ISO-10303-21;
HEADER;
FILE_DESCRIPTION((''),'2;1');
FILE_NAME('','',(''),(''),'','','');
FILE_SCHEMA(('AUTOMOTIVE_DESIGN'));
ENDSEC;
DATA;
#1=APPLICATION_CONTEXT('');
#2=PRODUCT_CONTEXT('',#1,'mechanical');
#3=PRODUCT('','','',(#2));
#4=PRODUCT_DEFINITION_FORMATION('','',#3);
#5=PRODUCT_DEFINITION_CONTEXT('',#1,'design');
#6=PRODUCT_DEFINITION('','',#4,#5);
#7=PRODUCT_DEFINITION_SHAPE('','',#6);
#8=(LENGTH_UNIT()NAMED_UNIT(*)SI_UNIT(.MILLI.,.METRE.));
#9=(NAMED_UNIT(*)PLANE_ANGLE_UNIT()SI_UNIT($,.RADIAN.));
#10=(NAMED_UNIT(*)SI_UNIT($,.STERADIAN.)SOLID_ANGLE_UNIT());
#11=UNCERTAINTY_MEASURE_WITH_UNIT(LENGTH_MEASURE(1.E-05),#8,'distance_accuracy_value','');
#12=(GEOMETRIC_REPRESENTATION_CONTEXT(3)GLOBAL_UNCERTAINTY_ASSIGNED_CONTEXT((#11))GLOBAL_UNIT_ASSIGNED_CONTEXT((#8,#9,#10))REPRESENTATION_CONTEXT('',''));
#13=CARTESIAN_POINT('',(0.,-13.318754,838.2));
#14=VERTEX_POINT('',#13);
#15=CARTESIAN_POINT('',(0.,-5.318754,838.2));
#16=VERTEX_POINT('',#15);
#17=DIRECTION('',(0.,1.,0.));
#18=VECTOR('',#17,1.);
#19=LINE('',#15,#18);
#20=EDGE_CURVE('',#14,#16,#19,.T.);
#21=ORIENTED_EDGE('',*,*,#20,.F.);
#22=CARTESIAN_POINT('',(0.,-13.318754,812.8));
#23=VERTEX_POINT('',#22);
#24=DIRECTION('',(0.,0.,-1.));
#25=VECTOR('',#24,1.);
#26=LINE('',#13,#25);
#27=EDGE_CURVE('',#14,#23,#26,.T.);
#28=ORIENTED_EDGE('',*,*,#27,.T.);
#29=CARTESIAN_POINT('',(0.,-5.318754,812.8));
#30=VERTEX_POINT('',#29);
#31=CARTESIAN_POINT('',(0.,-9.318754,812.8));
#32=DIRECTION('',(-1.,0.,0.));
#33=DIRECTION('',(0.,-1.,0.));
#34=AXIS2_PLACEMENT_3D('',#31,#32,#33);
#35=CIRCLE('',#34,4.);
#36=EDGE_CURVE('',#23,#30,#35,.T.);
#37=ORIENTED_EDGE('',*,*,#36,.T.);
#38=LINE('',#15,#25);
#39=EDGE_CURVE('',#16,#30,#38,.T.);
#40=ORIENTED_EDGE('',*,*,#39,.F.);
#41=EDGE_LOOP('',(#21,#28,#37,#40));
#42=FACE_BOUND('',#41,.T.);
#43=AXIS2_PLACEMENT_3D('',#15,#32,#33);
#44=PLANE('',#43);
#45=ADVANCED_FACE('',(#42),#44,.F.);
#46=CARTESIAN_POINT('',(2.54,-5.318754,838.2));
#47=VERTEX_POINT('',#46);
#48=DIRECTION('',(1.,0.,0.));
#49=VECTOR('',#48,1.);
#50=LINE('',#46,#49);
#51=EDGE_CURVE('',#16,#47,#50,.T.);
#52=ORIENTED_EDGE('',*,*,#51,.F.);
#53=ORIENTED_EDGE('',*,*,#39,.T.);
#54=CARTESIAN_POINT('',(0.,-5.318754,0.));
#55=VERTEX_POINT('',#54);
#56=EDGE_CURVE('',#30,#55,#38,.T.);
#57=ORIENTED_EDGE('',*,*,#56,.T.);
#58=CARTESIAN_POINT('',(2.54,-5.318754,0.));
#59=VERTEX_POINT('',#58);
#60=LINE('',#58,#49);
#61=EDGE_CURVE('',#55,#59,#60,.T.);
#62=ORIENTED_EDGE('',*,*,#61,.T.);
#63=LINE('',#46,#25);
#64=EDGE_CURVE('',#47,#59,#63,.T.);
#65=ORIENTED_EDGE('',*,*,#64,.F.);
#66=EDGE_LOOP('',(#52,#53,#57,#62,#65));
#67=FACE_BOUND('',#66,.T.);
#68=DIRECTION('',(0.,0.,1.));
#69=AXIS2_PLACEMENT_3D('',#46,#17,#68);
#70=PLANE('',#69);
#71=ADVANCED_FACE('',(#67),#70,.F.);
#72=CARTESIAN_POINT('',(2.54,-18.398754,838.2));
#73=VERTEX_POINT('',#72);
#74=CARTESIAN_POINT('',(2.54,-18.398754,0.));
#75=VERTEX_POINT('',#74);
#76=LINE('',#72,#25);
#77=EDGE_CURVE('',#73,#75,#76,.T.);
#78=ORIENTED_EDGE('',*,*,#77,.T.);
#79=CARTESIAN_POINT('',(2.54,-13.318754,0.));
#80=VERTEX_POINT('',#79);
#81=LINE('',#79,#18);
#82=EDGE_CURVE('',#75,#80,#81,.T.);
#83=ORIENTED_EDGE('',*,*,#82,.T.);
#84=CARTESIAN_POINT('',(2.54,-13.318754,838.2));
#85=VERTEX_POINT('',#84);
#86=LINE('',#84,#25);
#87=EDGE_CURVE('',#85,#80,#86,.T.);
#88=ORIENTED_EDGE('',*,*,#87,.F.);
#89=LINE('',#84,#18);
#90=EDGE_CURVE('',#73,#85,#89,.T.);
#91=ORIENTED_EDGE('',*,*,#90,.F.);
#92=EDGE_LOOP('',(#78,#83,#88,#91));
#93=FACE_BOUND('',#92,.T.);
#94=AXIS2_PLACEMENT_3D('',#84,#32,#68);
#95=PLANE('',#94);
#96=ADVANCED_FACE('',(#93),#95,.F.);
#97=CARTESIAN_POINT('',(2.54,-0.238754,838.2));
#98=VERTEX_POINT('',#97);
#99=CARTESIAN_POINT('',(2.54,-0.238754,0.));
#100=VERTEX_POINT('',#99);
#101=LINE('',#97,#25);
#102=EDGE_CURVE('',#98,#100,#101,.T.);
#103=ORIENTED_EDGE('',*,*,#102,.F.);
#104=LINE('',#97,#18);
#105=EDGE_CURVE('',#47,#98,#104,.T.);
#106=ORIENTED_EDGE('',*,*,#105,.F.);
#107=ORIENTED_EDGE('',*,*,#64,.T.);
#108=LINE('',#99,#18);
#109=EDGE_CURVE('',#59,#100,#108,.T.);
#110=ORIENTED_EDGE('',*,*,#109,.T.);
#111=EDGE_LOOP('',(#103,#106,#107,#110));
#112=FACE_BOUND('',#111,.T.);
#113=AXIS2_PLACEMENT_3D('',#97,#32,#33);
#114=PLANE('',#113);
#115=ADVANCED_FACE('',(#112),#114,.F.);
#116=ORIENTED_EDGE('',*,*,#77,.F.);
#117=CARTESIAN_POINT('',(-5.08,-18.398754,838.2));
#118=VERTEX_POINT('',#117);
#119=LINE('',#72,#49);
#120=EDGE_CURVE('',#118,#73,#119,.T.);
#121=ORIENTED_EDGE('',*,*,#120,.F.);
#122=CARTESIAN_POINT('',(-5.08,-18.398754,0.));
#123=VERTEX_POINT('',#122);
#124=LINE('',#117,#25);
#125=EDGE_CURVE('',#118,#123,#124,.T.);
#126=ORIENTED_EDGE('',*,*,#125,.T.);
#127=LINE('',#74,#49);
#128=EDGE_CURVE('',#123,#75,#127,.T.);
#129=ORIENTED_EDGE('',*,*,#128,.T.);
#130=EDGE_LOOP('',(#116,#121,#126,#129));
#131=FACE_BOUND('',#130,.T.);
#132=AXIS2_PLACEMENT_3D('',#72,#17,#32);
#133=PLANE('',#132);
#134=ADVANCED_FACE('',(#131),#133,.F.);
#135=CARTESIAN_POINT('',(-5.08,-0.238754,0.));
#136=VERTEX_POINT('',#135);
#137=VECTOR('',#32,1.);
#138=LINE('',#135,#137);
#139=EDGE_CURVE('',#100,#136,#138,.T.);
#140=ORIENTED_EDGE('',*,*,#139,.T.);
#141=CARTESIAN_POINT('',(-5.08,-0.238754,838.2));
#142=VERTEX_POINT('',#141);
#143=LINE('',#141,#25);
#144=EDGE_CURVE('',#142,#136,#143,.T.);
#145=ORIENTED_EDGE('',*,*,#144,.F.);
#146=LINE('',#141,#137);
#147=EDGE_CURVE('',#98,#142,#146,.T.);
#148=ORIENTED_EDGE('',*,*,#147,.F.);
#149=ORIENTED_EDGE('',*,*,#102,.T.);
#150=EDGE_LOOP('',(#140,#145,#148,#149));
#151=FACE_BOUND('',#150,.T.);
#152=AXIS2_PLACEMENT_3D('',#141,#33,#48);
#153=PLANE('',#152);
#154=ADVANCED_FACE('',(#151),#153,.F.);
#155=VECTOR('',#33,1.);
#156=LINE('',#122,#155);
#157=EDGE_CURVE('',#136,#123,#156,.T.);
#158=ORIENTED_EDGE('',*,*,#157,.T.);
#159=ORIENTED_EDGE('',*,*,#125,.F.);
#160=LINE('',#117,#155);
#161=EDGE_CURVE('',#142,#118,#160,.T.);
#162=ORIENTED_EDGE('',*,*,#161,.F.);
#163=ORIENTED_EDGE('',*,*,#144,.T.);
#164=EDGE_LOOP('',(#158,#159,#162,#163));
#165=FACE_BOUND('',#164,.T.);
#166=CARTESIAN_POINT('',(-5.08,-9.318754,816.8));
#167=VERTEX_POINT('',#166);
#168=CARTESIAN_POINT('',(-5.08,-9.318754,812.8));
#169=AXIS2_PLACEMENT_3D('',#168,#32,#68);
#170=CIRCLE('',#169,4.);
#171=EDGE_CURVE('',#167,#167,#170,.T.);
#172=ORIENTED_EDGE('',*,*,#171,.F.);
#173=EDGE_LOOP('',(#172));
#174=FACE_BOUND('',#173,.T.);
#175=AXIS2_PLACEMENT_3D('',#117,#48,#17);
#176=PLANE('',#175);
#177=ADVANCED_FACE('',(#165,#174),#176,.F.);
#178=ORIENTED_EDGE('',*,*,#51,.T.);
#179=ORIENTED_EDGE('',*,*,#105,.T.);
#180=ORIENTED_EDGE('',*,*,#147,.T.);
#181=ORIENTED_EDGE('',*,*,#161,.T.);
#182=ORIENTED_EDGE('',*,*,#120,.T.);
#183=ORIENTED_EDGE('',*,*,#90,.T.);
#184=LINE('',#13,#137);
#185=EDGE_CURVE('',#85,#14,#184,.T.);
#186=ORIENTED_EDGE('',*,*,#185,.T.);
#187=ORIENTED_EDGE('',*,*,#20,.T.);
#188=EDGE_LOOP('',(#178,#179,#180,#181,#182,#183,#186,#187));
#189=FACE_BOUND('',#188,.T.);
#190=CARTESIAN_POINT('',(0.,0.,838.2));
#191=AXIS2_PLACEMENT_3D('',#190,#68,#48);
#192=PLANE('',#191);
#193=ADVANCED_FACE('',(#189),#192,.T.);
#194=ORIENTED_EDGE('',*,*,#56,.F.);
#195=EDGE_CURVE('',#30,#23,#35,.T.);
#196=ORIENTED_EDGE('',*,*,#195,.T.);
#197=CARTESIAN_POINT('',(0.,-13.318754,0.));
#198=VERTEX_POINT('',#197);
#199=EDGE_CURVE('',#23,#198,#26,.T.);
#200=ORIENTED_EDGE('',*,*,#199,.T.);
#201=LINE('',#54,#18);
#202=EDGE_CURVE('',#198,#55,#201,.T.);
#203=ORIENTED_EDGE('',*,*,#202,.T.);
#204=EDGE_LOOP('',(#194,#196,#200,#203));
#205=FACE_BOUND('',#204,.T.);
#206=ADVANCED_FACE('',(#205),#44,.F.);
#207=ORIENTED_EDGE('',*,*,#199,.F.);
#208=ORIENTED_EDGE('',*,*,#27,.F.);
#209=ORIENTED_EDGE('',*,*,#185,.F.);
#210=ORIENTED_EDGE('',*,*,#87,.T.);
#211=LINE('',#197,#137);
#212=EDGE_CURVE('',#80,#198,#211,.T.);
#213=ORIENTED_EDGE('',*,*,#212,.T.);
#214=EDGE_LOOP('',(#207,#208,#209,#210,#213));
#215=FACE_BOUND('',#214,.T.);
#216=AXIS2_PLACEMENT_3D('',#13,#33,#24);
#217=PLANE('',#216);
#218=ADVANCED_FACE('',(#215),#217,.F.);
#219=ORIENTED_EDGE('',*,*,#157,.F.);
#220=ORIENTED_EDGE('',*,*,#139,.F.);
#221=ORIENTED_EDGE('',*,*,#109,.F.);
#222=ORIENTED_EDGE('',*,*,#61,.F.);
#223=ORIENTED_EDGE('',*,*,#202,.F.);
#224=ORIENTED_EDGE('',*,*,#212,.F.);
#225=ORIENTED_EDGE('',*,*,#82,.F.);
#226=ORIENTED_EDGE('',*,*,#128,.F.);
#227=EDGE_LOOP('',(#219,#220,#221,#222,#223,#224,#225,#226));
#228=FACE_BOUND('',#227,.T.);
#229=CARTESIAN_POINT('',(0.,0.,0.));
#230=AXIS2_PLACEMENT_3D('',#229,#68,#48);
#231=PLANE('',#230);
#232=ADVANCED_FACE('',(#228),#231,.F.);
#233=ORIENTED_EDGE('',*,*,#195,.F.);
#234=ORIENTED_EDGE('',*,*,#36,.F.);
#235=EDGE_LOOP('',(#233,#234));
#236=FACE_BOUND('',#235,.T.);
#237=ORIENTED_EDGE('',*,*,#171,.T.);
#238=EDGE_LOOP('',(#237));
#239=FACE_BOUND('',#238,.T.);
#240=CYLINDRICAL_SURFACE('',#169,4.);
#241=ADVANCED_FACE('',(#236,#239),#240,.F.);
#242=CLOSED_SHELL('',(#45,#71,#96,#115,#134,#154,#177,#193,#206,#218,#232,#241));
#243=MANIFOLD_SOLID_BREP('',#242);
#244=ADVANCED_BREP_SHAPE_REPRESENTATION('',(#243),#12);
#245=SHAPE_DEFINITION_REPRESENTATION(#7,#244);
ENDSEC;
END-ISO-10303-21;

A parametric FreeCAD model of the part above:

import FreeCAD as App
import Part
import Sketcher
Q = App.Units.Quantity


def add_polygon(sketch, points):
    """Adds a closed chain of lines whose ends are joined by coincident constraints."""
    first, n = sketch.GeometryCount, len(points)
    for a, b in zip(points, points[1:] + points[:1]):
        sketch.addGeometry(Part.LineSegment(App.Vector(*a, 0), App.Vector(*b, 0)), False)
    for i in range(n):
        sketch.addConstraint(Sketcher.Constraint("Coincident", first + i, 2, first + (i + 1) % n, 1))

doc = App.newDocument("Part")
body = doc.addObject("PartDesign::Body", "Body")

sketch1 = body.newObject("Sketcher::SketchObject", "Sketch")
sketch1.AttachmentSupport = (doc.getObject("XY_Plane"), [""])
sketch1.MapMode = "FlatFace"
add_polygon(sketch1, [(0, -13.3), (0, -5.3), (2.5, -5.3), (2.5, -0.2), (-5.1, -0.2), (-5.1, -18.4), (2.5, -18.4), (2.5, -13.3)])
sketch1.addConstraint(Sketcher.Constraint("Vertical", 0))
sketch1.addConstraint(Sketcher.Constraint("Horizontal", 1))
sketch1.addConstraint(Sketcher.Constraint("Vertical", 2))
sketch1.addConstraint(Sketcher.Constraint("Horizontal", 3))
sketch1.addConstraint(Sketcher.Constraint("Vertical", 4))
sketch1.addConstraint(Sketcher.Constraint("Horizontal", 5))
sketch1.addConstraint(Sketcher.Constraint("Vertical", 6))
sketch1.addConstraint(Sketcher.Constraint("Horizontal", 7))
sketch1.addConstraint(Sketcher.Constraint("PointOnObject", 0, 2, -2))
sketch1.addConstraint(Sketcher.Constraint("Vertical", 2, 2, 5, 2))
sketch1.addConstraint(Sketcher.Constraint("Equal", 2, 6))
sketch1.addConstraint(Sketcher.Constraint("DistanceX", 1, 1, 1, 2, Q("0.1 in")))
sketch1.addConstraint(Sketcher.Constraint("DistanceX", 3, 2, 3, 1, Q("0.3 in")))
sketch1.addConstraint(Sketcher.Constraint("DistanceY", 2, 1, 2, 2, Q("0.2 in")))
sketch1.addConstraint(Sketcher.Constraint("DistanceY", 0, 1, 0, 2, Q("8 mm")))
sketch1.addConstraint(Sketcher.Constraint("DistanceY", 0, 2, -1, 1, Q("5.318754 mm")))
pad1 = body.newObject("PartDesign::Pad", "Pad")
pad1.Profile = sketch1
pad1.Length = Q("33 in")

sketch2 = body.newObject("Sketcher::SketchObject", "Sketch001")
sketch2.AttachmentSupport = (doc.getObject("YZ_Plane"), [""])
sketch2.MapMode = "FlatFace"
sketch2.AttachmentOffset = App.Placement(App.Vector(0, 0, -0.2 * 25.4), App.Rotation())
sketch2.addGeometry(Part.Circle(App.Vector(-9.3, 812.8, 0), App.Vector(0, 0, 1), 4), False)
sketch2.addGeometry(Part.Circle(App.Vector(-40.3, 28, 0), App.Vector(0, 0, 1), 4), False)
sketch2.addConstraint(Sketcher.Constraint("Equal", 0, 1))
sketch2.addConstraint(Sketcher.Constraint("DistanceY", -1, 1, 0, 3, Q("32 in")))
sketch2.addConstraint(Sketcher.Constraint("Diameter", 0, Q("8 mm")))
sketch2.addConstraint(Sketcher.Constraint("DistanceX", 1, 3, 0, 3, Q("31.01845 mm")))
sketch2.addConstraint(Sketcher.Constraint("DistanceX", 0, 3, -1, 1, Q("9.318754 mm")))
sketch2.addConstraint(Sketcher.Constraint("DistanceY", -1, 1, 1, 3, Q("28.049203 mm")))
doc.recompute()
hole = body.newObject("PartDesign::Hole", "Hole")
hole.Profile = sketch2
hole.ThreadType = "None"
hole.Diameter = 8
hole.DepthType = "ThroughAll"
hole.Reversed = True

doc.recompute()
